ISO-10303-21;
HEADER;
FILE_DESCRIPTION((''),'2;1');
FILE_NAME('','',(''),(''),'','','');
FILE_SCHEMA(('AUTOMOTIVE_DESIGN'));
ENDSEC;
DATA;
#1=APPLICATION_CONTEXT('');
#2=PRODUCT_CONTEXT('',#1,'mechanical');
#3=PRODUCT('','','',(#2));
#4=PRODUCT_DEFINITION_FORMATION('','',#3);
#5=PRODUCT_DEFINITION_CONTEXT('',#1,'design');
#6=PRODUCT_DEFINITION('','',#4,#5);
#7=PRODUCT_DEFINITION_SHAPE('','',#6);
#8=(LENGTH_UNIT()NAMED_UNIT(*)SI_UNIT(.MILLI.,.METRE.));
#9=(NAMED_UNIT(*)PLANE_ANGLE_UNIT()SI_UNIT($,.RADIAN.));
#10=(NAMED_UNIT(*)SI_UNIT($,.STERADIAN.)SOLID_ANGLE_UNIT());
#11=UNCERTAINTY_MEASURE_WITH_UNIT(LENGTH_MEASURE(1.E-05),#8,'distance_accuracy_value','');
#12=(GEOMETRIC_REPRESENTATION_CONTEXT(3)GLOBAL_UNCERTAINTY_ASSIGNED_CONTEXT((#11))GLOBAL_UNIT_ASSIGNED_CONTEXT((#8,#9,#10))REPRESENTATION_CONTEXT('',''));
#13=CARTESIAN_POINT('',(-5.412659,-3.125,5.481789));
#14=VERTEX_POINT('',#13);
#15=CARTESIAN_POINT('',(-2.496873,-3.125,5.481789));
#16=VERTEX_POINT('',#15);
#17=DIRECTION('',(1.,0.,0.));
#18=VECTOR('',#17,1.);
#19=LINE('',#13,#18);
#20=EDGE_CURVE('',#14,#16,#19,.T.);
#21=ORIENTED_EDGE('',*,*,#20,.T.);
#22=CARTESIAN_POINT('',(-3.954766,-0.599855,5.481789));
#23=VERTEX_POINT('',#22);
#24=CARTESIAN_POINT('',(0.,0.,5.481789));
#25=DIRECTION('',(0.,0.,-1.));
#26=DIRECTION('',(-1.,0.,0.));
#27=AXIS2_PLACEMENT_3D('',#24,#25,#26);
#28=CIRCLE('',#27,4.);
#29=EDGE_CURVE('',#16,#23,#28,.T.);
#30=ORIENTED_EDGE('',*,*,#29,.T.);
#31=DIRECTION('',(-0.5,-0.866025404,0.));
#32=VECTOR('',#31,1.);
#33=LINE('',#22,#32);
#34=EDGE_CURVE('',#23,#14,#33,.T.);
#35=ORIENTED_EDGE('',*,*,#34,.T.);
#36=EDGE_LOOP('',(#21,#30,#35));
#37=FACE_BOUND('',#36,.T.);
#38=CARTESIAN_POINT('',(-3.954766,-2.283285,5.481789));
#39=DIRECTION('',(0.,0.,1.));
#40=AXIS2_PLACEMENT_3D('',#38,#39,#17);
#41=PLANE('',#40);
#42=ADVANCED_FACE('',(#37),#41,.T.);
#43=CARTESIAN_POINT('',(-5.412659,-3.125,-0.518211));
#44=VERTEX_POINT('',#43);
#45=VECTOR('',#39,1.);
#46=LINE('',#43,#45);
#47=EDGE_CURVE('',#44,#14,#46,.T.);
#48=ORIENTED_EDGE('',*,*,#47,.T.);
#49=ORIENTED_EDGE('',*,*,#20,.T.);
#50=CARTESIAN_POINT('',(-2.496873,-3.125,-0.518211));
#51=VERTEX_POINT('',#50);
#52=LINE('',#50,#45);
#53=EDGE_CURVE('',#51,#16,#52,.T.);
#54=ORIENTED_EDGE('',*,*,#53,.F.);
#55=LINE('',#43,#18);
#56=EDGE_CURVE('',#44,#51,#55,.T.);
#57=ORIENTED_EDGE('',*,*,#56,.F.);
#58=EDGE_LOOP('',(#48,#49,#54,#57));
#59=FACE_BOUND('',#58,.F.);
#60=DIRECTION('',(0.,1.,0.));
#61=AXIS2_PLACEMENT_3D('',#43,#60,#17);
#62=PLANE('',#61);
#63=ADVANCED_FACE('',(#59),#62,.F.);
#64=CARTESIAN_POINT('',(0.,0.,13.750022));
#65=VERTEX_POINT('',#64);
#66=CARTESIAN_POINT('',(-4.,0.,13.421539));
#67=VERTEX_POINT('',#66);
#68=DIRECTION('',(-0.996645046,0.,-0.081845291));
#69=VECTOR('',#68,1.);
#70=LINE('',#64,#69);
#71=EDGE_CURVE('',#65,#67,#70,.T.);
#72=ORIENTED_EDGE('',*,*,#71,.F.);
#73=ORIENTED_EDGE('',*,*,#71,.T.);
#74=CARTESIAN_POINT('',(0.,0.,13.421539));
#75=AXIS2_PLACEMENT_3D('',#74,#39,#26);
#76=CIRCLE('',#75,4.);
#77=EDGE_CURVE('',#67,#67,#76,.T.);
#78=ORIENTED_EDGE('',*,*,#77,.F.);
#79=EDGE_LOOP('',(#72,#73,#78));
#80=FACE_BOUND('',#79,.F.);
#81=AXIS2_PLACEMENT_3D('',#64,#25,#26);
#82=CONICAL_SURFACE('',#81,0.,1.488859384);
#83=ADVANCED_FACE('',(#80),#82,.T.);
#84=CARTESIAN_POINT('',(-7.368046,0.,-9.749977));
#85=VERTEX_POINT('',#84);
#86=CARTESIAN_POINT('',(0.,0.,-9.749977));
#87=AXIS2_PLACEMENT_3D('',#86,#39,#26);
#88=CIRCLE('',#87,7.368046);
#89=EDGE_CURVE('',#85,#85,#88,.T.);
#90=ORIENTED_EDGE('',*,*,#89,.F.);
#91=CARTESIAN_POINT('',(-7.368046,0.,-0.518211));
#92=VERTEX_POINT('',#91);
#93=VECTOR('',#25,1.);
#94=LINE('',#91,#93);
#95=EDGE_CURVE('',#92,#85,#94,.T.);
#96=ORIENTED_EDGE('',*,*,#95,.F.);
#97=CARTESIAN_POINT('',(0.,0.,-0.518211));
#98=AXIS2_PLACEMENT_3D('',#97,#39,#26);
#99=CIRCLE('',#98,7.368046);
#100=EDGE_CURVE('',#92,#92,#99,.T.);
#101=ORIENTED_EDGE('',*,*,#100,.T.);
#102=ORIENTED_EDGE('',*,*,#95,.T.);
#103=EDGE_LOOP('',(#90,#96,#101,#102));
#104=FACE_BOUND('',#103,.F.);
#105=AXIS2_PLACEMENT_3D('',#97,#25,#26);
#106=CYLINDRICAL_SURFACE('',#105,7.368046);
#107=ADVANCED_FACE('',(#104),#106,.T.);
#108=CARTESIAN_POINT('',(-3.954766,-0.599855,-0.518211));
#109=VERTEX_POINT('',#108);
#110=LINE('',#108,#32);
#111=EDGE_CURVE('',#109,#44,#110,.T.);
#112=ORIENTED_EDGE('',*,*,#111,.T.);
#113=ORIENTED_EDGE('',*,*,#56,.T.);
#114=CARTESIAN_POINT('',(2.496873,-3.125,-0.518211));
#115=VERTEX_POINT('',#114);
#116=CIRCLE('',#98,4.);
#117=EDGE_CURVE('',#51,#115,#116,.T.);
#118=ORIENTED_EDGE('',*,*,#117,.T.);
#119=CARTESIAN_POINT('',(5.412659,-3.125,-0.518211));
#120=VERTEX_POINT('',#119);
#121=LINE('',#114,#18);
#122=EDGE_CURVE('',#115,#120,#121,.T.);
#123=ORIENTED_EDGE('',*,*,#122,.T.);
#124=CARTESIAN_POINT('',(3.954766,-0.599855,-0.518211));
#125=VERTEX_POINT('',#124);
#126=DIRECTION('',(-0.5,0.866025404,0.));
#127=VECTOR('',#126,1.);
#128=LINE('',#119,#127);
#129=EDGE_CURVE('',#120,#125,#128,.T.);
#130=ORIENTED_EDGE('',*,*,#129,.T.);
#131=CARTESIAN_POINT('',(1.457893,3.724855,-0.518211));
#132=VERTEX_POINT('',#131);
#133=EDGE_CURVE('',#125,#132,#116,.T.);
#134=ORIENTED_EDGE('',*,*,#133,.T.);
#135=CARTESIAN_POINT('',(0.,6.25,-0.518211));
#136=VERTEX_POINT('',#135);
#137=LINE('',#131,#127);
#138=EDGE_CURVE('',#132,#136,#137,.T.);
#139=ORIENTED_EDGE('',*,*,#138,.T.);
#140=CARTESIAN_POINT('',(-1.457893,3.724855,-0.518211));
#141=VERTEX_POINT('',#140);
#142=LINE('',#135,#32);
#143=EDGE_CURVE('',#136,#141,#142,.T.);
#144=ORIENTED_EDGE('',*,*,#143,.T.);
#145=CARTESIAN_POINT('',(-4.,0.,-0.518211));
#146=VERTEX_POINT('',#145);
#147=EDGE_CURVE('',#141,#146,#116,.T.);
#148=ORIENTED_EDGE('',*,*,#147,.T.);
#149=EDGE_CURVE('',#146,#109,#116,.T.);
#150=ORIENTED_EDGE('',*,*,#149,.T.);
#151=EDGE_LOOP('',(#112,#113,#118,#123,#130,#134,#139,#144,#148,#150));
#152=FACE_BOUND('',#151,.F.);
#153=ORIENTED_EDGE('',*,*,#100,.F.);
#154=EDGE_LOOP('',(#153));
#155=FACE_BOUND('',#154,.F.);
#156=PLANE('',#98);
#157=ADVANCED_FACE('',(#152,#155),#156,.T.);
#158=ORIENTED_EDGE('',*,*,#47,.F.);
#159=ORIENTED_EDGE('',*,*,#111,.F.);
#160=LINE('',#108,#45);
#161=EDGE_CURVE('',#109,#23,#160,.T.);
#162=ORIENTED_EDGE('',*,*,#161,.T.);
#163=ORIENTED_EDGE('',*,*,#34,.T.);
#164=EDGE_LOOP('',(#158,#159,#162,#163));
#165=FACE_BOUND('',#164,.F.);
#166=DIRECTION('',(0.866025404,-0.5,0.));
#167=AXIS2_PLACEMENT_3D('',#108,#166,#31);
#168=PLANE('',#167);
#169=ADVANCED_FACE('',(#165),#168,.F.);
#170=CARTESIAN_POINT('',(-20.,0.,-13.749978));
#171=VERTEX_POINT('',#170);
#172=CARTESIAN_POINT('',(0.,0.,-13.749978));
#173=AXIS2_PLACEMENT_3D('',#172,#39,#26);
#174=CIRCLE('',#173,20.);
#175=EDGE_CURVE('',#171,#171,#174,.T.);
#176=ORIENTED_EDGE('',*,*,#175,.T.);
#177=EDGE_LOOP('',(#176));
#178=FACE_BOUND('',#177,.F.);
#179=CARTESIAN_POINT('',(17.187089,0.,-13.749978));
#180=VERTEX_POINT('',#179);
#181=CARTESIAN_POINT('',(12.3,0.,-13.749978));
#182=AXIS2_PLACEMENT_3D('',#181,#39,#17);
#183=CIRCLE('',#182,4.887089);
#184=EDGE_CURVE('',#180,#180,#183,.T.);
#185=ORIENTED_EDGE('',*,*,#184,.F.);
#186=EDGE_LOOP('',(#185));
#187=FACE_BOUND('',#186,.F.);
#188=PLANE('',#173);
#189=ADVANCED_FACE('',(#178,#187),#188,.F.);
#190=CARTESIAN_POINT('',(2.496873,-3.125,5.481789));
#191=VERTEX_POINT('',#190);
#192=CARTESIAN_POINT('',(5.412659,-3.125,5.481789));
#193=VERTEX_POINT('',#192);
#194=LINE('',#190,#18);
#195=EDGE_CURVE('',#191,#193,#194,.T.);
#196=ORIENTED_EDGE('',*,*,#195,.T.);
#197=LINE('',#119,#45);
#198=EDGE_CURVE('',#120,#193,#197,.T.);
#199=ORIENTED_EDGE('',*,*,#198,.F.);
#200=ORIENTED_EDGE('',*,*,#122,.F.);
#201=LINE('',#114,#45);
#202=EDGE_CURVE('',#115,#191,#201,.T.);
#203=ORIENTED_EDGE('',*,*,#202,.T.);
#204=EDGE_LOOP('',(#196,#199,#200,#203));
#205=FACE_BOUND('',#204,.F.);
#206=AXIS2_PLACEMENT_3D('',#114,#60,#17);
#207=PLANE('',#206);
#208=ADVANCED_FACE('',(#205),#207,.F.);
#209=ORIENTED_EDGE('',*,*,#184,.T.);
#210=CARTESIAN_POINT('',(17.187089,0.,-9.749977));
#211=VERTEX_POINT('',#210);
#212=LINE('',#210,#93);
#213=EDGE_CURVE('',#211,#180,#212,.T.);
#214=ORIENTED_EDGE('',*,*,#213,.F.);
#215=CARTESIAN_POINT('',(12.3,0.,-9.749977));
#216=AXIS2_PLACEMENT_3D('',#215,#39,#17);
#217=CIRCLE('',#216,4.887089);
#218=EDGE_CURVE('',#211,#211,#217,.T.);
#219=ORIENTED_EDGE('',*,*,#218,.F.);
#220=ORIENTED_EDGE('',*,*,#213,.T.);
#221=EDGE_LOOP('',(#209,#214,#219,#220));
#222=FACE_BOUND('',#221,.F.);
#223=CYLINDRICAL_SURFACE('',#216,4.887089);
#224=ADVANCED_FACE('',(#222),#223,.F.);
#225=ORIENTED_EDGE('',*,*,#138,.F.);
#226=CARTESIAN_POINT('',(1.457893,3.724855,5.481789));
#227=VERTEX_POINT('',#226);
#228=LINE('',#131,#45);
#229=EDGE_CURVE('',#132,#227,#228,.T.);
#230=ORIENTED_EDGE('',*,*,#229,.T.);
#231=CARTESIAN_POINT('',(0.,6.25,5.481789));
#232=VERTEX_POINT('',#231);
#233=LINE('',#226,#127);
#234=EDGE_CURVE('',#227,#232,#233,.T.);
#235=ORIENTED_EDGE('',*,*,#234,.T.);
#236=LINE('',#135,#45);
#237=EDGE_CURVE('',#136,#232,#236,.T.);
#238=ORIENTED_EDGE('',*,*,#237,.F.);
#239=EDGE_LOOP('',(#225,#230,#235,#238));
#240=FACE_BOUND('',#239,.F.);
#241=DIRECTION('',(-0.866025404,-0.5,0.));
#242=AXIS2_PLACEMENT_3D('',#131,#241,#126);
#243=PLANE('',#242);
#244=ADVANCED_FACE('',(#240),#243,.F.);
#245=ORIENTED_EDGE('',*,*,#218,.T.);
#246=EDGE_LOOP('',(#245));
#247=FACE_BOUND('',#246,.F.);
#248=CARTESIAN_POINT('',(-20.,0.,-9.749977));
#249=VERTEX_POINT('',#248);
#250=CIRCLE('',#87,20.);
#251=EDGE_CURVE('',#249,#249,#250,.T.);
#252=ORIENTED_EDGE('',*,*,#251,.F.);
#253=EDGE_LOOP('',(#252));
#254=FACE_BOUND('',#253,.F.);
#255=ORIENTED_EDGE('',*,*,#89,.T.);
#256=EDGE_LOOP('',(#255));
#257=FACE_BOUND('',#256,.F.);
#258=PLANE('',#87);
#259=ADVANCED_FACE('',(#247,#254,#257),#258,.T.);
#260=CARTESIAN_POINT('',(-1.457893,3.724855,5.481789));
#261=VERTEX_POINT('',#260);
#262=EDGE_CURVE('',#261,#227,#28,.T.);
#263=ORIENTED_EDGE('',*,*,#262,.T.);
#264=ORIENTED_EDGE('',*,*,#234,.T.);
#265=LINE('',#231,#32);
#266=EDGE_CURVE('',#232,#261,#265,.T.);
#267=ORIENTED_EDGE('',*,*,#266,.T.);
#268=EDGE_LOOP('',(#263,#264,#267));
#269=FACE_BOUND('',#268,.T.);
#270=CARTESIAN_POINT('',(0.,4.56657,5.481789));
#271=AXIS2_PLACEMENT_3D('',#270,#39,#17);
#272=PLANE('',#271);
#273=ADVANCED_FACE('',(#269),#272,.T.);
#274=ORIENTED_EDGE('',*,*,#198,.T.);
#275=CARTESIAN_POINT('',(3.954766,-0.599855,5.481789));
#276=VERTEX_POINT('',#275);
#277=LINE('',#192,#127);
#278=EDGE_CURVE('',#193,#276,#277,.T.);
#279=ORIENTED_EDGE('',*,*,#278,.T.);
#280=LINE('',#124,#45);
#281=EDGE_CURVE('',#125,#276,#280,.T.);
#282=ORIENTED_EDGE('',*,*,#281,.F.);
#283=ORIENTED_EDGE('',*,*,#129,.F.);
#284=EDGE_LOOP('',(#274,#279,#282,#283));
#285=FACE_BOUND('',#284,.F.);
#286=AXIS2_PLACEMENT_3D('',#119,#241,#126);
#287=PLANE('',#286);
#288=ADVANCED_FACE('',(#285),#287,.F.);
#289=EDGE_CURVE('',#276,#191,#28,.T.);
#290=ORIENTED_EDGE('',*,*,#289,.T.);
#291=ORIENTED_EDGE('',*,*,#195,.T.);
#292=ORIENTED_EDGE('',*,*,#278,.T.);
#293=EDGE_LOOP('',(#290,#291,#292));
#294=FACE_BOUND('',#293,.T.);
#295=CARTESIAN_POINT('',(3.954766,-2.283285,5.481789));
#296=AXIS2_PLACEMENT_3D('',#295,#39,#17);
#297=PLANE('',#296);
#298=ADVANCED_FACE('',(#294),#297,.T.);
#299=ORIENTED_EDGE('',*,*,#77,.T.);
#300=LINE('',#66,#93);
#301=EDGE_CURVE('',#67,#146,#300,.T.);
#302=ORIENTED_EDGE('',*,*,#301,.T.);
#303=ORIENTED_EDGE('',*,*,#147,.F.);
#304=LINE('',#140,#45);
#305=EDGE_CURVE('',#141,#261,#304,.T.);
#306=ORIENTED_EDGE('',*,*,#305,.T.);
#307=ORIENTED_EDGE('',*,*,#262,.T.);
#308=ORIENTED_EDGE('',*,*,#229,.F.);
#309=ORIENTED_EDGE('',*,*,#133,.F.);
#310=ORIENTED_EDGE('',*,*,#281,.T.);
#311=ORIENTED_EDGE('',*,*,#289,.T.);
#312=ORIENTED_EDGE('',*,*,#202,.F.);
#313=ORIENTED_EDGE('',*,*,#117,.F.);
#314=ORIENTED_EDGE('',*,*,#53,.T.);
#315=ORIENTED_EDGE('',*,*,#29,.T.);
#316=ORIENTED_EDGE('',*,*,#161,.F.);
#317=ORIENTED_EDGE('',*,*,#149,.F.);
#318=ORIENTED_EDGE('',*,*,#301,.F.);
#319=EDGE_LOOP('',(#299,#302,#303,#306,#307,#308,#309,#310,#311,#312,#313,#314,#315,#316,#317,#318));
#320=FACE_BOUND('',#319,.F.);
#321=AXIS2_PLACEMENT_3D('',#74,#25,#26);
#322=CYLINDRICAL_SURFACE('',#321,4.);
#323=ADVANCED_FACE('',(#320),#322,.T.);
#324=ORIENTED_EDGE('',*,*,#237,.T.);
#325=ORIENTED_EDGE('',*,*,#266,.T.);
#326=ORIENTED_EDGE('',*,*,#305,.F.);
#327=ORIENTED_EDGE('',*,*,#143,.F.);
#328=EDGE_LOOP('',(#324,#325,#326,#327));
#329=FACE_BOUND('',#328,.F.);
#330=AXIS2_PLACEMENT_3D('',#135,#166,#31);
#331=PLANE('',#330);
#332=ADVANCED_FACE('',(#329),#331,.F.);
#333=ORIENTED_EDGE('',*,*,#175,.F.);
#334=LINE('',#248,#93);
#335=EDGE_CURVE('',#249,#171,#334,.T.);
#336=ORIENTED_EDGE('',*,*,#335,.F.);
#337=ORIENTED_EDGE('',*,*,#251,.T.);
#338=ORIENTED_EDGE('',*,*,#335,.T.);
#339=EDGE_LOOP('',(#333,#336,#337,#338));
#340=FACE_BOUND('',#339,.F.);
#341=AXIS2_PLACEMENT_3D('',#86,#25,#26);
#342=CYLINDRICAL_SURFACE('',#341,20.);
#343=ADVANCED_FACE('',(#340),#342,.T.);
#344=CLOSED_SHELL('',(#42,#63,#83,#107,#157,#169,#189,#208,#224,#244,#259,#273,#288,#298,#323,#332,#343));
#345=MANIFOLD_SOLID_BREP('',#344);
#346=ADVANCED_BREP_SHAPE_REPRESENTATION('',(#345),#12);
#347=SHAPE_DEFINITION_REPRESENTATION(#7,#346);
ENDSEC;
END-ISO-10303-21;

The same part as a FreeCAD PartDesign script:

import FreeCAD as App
import Part
import Sketcher
Q = App.Units.Quantity


def add_polygon(sketch, points):
    """Adds a closed chain of lines whose ends are joined by coincident constraints."""
    first, n = sketch.GeometryCount, len(points)
    for a, b in zip(points, points[1:] + points[:1]):
        sketch.addGeometry(Part.LineSegment(App.Vector(*a, 0), App.Vector(*b, 0)), False)
    for i in range(n):
        sketch.addConstraint(Sketcher.Constraint("Coincident", first + i, 2, first + (i + 1) % n, 1))

doc = App.newDocument("Part")
body = doc.addObject("PartDesign::Body", "Body")

# Sketch on XZ plane
sketch1 = doc.addObject("Sketcher::SketchObject", "Sketch")
body.addObject(sketch1)
sketch1.AttachmentSupport = (doc.XZ_Plane, [""])
sketch1.MapMode = "FlatFace"
add_polygon(sketch1, [(-7.4, -9.7), (-20, -9.7), (-20, -13.7), (0, -13.7), (0, 13.8), (-4, 13.4), (-4, -0.5), (-7.4, -0.5)])  # lines 0-7
sketch1.addConstraint([
    Sketcher.Constraint("Horizontal", 0),
    Sketcher.Constraint("Vertical", 1),
    Sketcher.Constraint("Horizontal", 2),
    Sketcher.Constraint("Vertical", 3),
    Sketcher.Constraint("Vertical", 5),
    Sketcher.Constraint("Horizontal", 6),
    Sketcher.Constraint("Vertical", 7),
    Sketcher.Constraint("PointOnObject", 2, 2, -2),
    Sketcher.Constraint("DistanceX", 2, 1, 2, 2, 20.0),
    Sketcher.Constraint("DistanceY", 1, 2, 1, 1, 4.000001),
    Sketcher.Constraint("DistanceY", 3, 1, 3, 2, 27.5),
    Sketcher.Constraint("DistanceX", 4, 2, -1, 1, 4.0),
    Sketcher.Constraint("DistanceY", 5, 2, 5, 1, 13.939751),
    Sketcher.Constraint("DistanceX", 0, 2, 0, 1, 12.631954),
    Sketcher.Constraint("DistanceY", 7, 2, 7, 1, 9.231766),
    Sketcher.Constraint("DistanceY", -1, 1, 4, 2, 13.421539),
])
revolution = doc.addObject("PartDesign::Revolution", "Revolution")
body.addObject(revolution)
revolution.Profile = sketch1
revolution.ReferenceAxis = (sketch1, ["V_Axis"])
revolution.Angle = 360

# Sketch on XY plane
sketch2 = doc.addObject("Sketcher::SketchObject", "Sketch001")
body.addObject(sketch2)
sketch2.AttachmentSupport = (doc.XY_Plane, [""])
sketch2.MapMode = "FlatFace"
sketch2.AttachmentOffset = App.Placement(App.Vector(0, 0, -0.518211), App.Rotation())
add_polygon(sketch2, [(-1.5, 3.7), (1.5, 3.7), (0, 6.2)])  # lines 0-2
add_polygon(sketch2, [(-4, -0.6), (-5.4, -3.1), (-2.5, -3.1)])  # lines 3-5
add_polygon(sketch2, [(2.5, -3.1), (5.4, -3.1), (4, -0.6)])  # lines 6-8
sketch2.addConstraint([
    Sketcher.Constraint("Horizontal", 0),
    Sketcher.Constraint("Horizontal", 4),
    Sketcher.Constraint("Horizontal", 6),
    Sketcher.Constraint("Symmetric", 3, 2, 6, 2, -2),
    Sketcher.Constraint("Symmetric", 5, 2, 7, 2, -2),
    Sketcher.Constraint("PointOnObject", 1, 2, -2),
    Sketcher.Constraint("Parallel", 2, 3),
    Sketcher.Constraint("Parallel", 1, 5),
    Sketcher.Constraint("Parallel", 5, 7),
    Sketcher.Constraint("Parallel", 3, 8),
    Sketcher.Constraint("Equal", 0, 4),
    Sketcher.Constraint("Angle", 1, Q("120 deg")),
    Sketcher.Constraint("DistanceY", -1, 1, 1, 2, 6.25),
    Sketcher.Constraint("DistanceY", 3, 2, -1, 1, 3.125),
    Sketcher.Constraint("DistanceX", 0, 1, 0, 2, 2.915786),
    Sketcher.Constraint("DistanceX", 3, 2, -1, 1, 5.412659),
])
pad1 = doc.addObject("PartDesign::Pad", "Pad")
body.addObject(pad1)
pad1.Profile = sketch2
pad1.Length = 6

# Sketch on XY plane
sketch3 = doc.addObject("Sketcher::SketchObject", "Sketch002")
body.addObject(sketch3)
sketch3.AttachmentSupport = (doc.XY_Plane, [""])
sketch3.MapMode = "FlatFace"
sketch3.AttachmentOffset = App.Placement(App.Vector(0, 0, -9.749977), App.Rotation())
sketch3.addGeometry(Part.Circle(App.Vector(12.3, 0, 0), App.Vector(0, 0, 1), 4.9), False)
sketch3.addConstraint([
    Sketcher.Constraint("PointOnObject", 0, 3, -1),
    Sketcher.Constraint("DistanceX", -1, 1, 0, 3, 12.3),
    Sketcher.Constraint("Diameter", 0, 9.774178),
])
pocket1 = doc.addObject("PartDesign::Pocket", "Pocket")
body.addObject(pocket1)
pocket1.Profile = sketch3
pocket1.Type = "ThroughAll"

doc.recompute()
